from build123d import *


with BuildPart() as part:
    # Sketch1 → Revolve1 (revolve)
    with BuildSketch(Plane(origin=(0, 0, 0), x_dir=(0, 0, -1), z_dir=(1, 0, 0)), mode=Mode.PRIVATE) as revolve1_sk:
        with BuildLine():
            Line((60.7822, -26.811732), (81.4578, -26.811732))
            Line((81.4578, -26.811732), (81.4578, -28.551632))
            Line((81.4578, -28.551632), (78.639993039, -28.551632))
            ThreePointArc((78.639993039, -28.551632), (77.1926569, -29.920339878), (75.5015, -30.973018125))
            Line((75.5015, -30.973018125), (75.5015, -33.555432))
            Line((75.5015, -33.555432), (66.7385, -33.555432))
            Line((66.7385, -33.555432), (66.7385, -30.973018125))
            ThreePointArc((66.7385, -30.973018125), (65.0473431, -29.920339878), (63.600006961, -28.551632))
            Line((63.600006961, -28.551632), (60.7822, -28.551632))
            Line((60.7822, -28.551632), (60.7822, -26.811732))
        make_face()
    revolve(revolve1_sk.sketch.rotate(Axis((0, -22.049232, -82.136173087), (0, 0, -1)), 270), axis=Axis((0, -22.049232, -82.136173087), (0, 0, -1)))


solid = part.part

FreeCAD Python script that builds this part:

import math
import FreeCAD as App
import Part
import Sketcher
Q = App.Units.Quantity

doc = App.newDocument("Part")
body = doc.addObject("PartDesign::Body", "Body")

# Sketch on YZ plane
sketch1 = doc.addObject("Sketcher::SketchObject", "Sketch")
body.addObject(sketch1)
sketch1.AttachmentSupport = (doc.YZ_Plane, [""])
sketch1.MapMode = "FlatFace"
sketch1.addGeometry([
    Part.LineSegment(App.Vector(-26.8, -81.5, 0), App.Vector(-26.8, -60.8, 0)),  # 0
    Part.LineSegment(App.Vector(-26.8, -60.8, 0), App.Vector(-28.6, -60.8, 0)),  # 1
    Part.LineSegment(App.Vector(-28.6, -60.8, 0), App.Vector(-28.6, -63.6, 0)),  # 2
    Part.ArcOfCircle(Part.Circle(App.Vector(-22, -71.1, 0), App.Vector(0, 0, 1), 9.9), math.radians(131), math.radians(154)),  # 3
    Part.LineSegment(App.Vector(-31, -66.7, 0), App.Vector(-33.6, -66.7, 0)),  # 4
    Part.LineSegment(App.Vector(-33.6, -66.7, 0), App.Vector(-33.6, -75.5, 0)),  # 5
    Part.LineSegment(App.Vector(-33.6, -75.5, 0), App.Vector(-31, -75.5, 0)),  # 6
    Part.ArcOfCircle(Part.Circle(App.Vector(-22, -71.1, 0), App.Vector(0, 0, 1), 9.9), math.radians(-154), math.radians(-131)),  # 7
    Part.LineSegment(App.Vector(-28.6, -78.6, 0), App.Vector(-28.6, -81.5, 0)),  # 8
    Part.LineSegment(App.Vector(-28.6, -81.5, 0), App.Vector(-26.8, -81.5, 0)),  # 9
], False)
sketch1.addGeometry(Part.LineSegment(App.Vector(-22, -60.8, 0), App.Vector(-22, -81.5, 0)), True)  # axis
sketch1.addConstraint([
    Sketcher.Constraint("Coincident", 0, 2, 1, 1),
    Sketcher.Constraint("Coincident", 1, 2, 2, 1),
    Sketcher.Constraint("Coincident", 2, 2, 3, 1),
    Sketcher.Constraint("Coincident", 3, 2, 4, 1),
    Sketcher.Constraint("Coincident", 4, 2, 5, 1),
    Sketcher.Constraint("Coincident", 5, 2, 6, 1),
    Sketcher.Constraint("Coincident", 6, 2, 7, 1),
    Sketcher.Constraint("Coincident", 7, 2, 8, 1),
    Sketcher.Constraint("Coincident", 8, 2, 9, 1),
    Sketcher.Constraint("Coincident", 9, 2, 0, 1),
    Sketcher.Constraint("Vertical", 0),
    Sketcher.Constraint("Horizontal", 1),
    Sketcher.Constraint("Vertical", 2),
    Sketcher.Constraint("Horizontal", 4),
    Sketcher.Constraint("Vertical", 5),
    Sketcher.Constraint("Horizontal", 6),
    Sketcher.Constraint("Vertical", 8),
    Sketcher.Constraint("Horizontal", 9),
    Sketcher.Constraint("Vertical", 10),
    Sketcher.Constraint("Coincident", 7, 3, 3, 3),
    Sketcher.Constraint("Equal", 3, 7),
    Sketcher.Constraint("Horizontal", 1, 2, 10, 1),
    Sketcher.Constraint("Horizontal", 9, 2, 10, 2),
    Sketcher.Constraint("Vertical", 3, 2, 6, 2),
    Sketcher.Constraint("Vertical", 2, 2, 7, 2),
    Sketcher.Constraint("Vertical", 7, 3, 10, 1),
    Sketcher.Constraint("Equal", 2, 8),
    Sketcher.Constraint("DistanceY", 3, 3, -1, 1, Q("2.8 in")),
    Sketcher.Constraint("DistanceY", 0, 1, 0, 2, Q("0.814 in")),
    Sketcher.Constraint("DistanceY", 5, 2, 5, 1, Q("0.345 in")),
    Sketcher.Constraint("DistanceX", 1, 2, 1, 1, Q("0.0685 in")),
    Sketcher.Constraint("DistanceX", 0, 2, 7, 3, Q("0.1875 in")),
    Sketcher.Constraint("DistanceX", 4, 2, 2, 2, Q("0.197 in")),
    Sketcher.Constraint("Radius", 3, Q("9.941403 mm")),
    Sketcher.Constraint("DistanceX", 3, 3, -1, 1, Q("22.049232 mm")),
])
revolution = doc.addObject("PartDesign::Revolution", "Revolution")
body.addObject(revolution)
revolution.Profile = sketch1
revolution.ReferenceAxis = (sketch1, ["Axis0"])
revolution.Angle = 360

doc.recompute()
